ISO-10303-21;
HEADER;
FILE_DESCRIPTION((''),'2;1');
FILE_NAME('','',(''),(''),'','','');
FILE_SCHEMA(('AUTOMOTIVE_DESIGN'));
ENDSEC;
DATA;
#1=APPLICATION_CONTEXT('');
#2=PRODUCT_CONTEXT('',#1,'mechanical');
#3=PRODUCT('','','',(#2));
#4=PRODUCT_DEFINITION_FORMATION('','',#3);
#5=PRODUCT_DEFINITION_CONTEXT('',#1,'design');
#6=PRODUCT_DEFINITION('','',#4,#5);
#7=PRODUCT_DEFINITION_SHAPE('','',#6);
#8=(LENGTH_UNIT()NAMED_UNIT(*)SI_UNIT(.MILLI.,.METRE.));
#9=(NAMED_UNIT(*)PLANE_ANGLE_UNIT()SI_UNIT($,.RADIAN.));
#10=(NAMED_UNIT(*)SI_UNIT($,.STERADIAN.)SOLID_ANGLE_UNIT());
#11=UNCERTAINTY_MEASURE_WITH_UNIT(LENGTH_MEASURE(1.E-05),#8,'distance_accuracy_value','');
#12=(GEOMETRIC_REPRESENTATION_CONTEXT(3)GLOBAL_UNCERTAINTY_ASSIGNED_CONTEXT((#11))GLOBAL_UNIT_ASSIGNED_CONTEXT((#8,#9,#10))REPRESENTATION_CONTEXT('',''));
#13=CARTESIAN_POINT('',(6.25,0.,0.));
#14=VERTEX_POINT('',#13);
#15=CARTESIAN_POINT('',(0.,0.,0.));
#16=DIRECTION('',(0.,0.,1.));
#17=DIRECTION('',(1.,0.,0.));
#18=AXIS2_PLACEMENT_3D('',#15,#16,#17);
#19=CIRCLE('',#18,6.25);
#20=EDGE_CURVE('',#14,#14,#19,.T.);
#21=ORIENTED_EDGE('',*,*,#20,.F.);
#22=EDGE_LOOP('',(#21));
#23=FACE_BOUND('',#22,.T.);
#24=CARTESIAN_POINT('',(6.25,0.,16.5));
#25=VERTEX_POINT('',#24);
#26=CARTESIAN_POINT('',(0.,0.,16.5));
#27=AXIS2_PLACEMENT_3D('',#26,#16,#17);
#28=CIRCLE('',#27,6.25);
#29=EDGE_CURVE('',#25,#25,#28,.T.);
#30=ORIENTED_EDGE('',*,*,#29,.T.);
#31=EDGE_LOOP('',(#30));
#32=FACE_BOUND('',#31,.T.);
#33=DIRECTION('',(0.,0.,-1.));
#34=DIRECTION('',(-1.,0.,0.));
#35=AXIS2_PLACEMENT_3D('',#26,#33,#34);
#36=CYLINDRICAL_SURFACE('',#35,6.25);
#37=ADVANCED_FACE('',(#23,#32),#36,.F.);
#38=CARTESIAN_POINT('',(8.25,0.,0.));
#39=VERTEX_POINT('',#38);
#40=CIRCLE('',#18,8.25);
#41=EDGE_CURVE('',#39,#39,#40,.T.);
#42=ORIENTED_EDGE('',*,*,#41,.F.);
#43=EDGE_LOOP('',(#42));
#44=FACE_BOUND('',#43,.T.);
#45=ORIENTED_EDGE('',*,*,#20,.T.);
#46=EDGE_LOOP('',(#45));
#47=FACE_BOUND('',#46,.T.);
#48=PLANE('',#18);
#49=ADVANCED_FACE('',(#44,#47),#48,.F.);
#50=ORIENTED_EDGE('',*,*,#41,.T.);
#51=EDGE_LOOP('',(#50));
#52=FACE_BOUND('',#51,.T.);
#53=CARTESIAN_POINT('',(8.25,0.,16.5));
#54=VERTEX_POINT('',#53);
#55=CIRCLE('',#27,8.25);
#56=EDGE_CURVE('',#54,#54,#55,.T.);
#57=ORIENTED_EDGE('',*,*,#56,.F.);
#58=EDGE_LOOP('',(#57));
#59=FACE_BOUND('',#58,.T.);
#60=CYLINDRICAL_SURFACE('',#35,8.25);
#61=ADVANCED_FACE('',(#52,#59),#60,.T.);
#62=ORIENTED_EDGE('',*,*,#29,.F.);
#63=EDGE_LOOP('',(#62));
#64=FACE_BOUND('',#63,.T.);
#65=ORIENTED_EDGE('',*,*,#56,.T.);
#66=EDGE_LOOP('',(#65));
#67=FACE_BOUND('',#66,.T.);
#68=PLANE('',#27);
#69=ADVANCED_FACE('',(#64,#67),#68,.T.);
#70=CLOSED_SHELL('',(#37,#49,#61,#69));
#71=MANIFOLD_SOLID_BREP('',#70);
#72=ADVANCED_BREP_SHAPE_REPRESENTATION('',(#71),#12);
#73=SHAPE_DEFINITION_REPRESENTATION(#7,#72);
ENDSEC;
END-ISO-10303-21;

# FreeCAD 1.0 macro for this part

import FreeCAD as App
import Part
import Sketcher
from FreeCAD import Vector

doc = App.newDocument("Part")
params = doc.addObject("Spreadsheet::Sheet", "Params")
for row, (alias, value) in enumerate([
    ("sketch1_diameter", "16.5 mm"),
    ("sketch1_diameter2", "12.5 mm"),
    ("pad1_length", "16.5 mm"),
], start=1):
    params.set(f"A{row}", alias)
    params.set(f"B{row}", "=" + value)
    params.setAlias(f"B{row}", alias)

body = doc.addObject("PartDesign::Body", "Body")

# Sketch on XY plane
sketch1 = body.newObject("Sketcher::SketchObject", "Sketch")
sketch1.AttachmentSupport = (doc.getObject("XY_Plane"), [""])
sketch1.MapMode = "FlatFace"
sketch1.addGeometry([
    Part.Circle(Vector(0, 0, 0), Vector(0, 0, 1), 8),
    Part.Circle(Vector(0, 0, 0), Vector(0, 0, 1), 6),
], False)
sketch1.addConstraint([
    Sketcher.Constraint("Coincident", 0, 3, -1, 1),
    Sketcher.Constraint("Coincident", 1, 3, -1, 1),
    Sketcher.Constraint("Diameter", 0, 16.5),
    Sketcher.Constraint("Diameter", 1, 12.5),
])
sketch1.setExpression("Constraints[2]", "Params.sketch1_diameter")
sketch1.setExpression("Constraints[3]", "Params.sketch1_diameter2")
pad1 = body.newObject("PartDesign::Pad", "Pad")
pad1.Profile = sketch1
pad1.setExpression("Length", "Params.pad1_length")

doc.recompute()
